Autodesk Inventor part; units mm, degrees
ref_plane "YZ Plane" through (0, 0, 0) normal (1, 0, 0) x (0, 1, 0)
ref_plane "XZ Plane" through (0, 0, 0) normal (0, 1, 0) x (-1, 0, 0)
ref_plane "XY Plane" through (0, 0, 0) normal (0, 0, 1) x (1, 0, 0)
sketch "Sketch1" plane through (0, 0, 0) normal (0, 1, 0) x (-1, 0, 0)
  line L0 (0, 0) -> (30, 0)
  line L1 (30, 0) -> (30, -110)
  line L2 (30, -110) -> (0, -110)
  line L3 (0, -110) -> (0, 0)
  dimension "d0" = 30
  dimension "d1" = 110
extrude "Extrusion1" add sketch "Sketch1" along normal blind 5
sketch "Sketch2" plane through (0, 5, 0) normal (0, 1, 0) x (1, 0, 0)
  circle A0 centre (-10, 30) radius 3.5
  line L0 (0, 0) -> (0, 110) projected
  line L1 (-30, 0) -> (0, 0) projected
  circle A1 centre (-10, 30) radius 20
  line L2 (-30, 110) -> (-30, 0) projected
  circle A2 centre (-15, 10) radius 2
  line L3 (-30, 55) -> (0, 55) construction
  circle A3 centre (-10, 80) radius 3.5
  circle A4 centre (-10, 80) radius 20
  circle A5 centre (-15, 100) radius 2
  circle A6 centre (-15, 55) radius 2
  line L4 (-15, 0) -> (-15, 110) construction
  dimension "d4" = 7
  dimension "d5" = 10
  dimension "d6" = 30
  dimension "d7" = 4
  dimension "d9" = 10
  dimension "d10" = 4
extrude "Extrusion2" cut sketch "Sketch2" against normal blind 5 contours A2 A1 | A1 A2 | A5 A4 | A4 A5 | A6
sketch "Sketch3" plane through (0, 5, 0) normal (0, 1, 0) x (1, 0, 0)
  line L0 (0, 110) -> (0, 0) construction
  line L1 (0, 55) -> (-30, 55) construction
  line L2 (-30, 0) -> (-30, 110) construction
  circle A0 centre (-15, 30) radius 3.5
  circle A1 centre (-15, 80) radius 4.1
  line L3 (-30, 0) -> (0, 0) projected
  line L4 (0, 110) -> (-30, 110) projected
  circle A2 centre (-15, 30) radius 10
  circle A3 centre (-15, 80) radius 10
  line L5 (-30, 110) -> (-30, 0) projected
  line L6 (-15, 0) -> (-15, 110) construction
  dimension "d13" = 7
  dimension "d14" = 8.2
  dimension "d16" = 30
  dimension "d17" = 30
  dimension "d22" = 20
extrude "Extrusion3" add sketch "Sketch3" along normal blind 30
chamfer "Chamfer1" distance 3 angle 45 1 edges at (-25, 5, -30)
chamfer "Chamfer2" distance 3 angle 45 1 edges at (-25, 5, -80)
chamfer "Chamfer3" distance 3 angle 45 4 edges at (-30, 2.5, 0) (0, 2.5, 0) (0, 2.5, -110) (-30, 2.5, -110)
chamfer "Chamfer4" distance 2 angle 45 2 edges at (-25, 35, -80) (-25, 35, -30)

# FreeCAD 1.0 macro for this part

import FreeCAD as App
import Part
import Sketcher


def edges_at(feature, points):
    """Names of the edges that pass closest to the given points."""
    edges = feature.Shape.Edges
    near = lambda p: min(range(len(edges)), key=lambda i: edges[i].distToShape(Part.Vertex(*p))[0])
    return sorted({f"Edge{near(p) + 1}" for p in points})

doc = App.newDocument("Part")
body = doc.addObject("PartDesign::Body", "Body")

# Sketch on XZ plane
sketch1 = body.newObject("Sketcher::SketchObject", "Sketch")
sketch1.AttachmentSupport = (doc.getObject("XZ_Plane"), [""])
sketch1.MapMode = "FlatFace"
sketch1.addGeometry([
    Part.LineSegment(App.Vector(-30, 0, 0), App.Vector(0, 0, 0)),
    Part.LineSegment(App.Vector(0, 0, 0), App.Vector(0, -110, 0)),
    Part.LineSegment(App.Vector(0, -110, 0), App.Vector(-30, -110, 0)),
    Part.LineSegment(App.Vector(-30, -110, 0), App.Vector(-30, 0, 0)),
], False)
sketch1.addConstraint([
    Sketcher.Constraint("Coincident", 0, 2, 1, 1),
    Sketcher.Constraint("Coincident", 1, 2, 2, 1),
    Sketcher.Constraint("Coincident", 2, 2, 3, 1),
    Sketcher.Constraint("Coincident", 3, 2, 0, 1),
    Sketcher.Constraint("Horizontal", 0),
    Sketcher.Constraint("Vertical", 1),
    Sketcher.Constraint("Horizontal", 2),
    Sketcher.Constraint("Vertical", 3),
    Sketcher.Constraint("Coincident", 0, 2, -1, 1),
    Sketcher.Constraint("DistanceX", 0, 1, 0, 2, 30.0),
    Sketcher.Constraint("DistanceY", 1, 2, 1, 1, 110.0),
])
pad1 = body.newObject("PartDesign::Pad", "Pad")
pad1.Profile = sketch1
pad1.Length = 5
pad1.Reversed = True

# Sketch on XZ plane
sketch2 = body.newObject("Sketcher::SketchObject", "Sketch001")
sketch2.AttachmentSupport = (doc.getObject("XZ_Plane"), [""])
sketch2.MapMode = "FlatFace"
sketch2.AttachmentOffset = App.Placement(App.Vector(0, 0, -5), App.Rotation())
sketch2.addGeometry([
    Part.Circle(App.Vector(-15, -10, 0), App.Vector(0, 0, 1), 2),
    Part.Circle(App.Vector(-15, -100, 0), App.Vector(0, 0, 1), 2),
    Part.Circle(App.Vector(-15, -55, 0), App.Vector(0, 0, 1), 2),
], False)
sketch2.addConstraint([
    Sketcher.Constraint("Equal", 0, 1),
    Sketcher.Constraint("Equal", 1, 2),
    Sketcher.Constraint("Vertical", 0, 3, 1, 3),
    Sketcher.Constraint("Vertical", 1, 3, 2, 3),
    Sketcher.Constraint("Diameter", 0, 4.0),
    Sketcher.Constraint("DistanceY", 0, 3, -1, 1, 10.0),
    Sketcher.Constraint("DistanceX", 0, 3, -1, 1, 15.0),
    Sketcher.Constraint("DistanceY", 1, 3, -1, 1, 100.0),
    Sketcher.Constraint("DistanceY", 2, 3, -1, 1, 55.0),
])
pocket1 = body.newObject("PartDesign::Pocket", "Pocket")
pocket1.Profile = sketch2
pocket1.Length = 5
pocket1.Reversed = True

# Sketch on XZ plane
sketch3 = body.newObject("Sketcher::SketchObject", "Sketch002")
sketch3.AttachmentSupport = (doc.getObject("XZ_Plane"), [""])
sketch3.MapMode = "FlatFace"
sketch3.AttachmentOffset = App.Placement(App.Vector(0, 0, -5), App.Rotation())
sketch3.addGeometry([
    Part.Circle(App.Vector(-15, -30, 0), App.Vector(0, 0, 1), 10),
    Part.Circle(App.Vector(-15, -30, 0), App.Vector(0, 0, 1), 3.5),
    Part.Circle(App.Vector(-15, -80, 0), App.Vector(0, 0, 1), 10),
    Part.Circle(App.Vector(-15, -80, 0), App.Vector(0, 0, 1), 4.1),
], False)
sketch3.addConstraint([
    Sketcher.Constraint("Coincident", 1, 3, 0, 3),
    Sketcher.Constraint("Coincident", 3, 3, 2, 3),
    Sketcher.Constraint("Equal", 0, 2),
    Sketcher.Constraint("Vertical", 1, 3, 2, 3),
    Sketcher.Constraint("Diameter", 0, 20.0),
    Sketcher.Constraint("Diameter", 1, 7.0),
    Sketcher.Constraint("Diameter", 3, 8.2),
    Sketcher.Constraint("DistanceY", 0, 3, -1, 1, 30.0),
    Sketcher.Constraint("DistanceX", 0, 3, -1, 1, 15.0),
    Sketcher.Constraint("DistanceY", 2, 3, -1, 1, 80.0),
])
pad2 = body.newObject("PartDesign::Pad", "Pad001")
pad2.Profile = sketch3
pad2.Length = 30
pad2.Reversed = True
doc.recompute()

chamfer = body.newObject("PartDesign::Chamfer", "Chamfer")
chamfer.Base = (pad2, edges_at(pad2, [(-25, 5, -30)]))
chamfer.Size = 3
doc.recompute()

chamfer2 = body.newObject("PartDesign::Chamfer", "Chamfer001")
chamfer2.Base = (chamfer, edges_at(chamfer, [(-25, 5, -80)]))
chamfer2.Size = 3
doc.recompute()

chamfer3 = body.newObject("PartDesign::Chamfer", "Chamfer002")
chamfer3.Base = (chamfer2, edges_at(chamfer2, [
    (-30, 2.5, 0),
    (0, 2.5, 0),
    (0, 2.5, -110),
    (-30, 2.5, -110),
]))
chamfer3.Size = 3
doc.recompute()

chamfer4 = body.newObject("PartDesign::Chamfer", "Chamfer003")
chamfer4.Base = (chamfer3, edges_at(chamfer3, [(-25, 35, -80), (-25, 35, -30)]))
chamfer4.Size = 2

doc.recompute()
